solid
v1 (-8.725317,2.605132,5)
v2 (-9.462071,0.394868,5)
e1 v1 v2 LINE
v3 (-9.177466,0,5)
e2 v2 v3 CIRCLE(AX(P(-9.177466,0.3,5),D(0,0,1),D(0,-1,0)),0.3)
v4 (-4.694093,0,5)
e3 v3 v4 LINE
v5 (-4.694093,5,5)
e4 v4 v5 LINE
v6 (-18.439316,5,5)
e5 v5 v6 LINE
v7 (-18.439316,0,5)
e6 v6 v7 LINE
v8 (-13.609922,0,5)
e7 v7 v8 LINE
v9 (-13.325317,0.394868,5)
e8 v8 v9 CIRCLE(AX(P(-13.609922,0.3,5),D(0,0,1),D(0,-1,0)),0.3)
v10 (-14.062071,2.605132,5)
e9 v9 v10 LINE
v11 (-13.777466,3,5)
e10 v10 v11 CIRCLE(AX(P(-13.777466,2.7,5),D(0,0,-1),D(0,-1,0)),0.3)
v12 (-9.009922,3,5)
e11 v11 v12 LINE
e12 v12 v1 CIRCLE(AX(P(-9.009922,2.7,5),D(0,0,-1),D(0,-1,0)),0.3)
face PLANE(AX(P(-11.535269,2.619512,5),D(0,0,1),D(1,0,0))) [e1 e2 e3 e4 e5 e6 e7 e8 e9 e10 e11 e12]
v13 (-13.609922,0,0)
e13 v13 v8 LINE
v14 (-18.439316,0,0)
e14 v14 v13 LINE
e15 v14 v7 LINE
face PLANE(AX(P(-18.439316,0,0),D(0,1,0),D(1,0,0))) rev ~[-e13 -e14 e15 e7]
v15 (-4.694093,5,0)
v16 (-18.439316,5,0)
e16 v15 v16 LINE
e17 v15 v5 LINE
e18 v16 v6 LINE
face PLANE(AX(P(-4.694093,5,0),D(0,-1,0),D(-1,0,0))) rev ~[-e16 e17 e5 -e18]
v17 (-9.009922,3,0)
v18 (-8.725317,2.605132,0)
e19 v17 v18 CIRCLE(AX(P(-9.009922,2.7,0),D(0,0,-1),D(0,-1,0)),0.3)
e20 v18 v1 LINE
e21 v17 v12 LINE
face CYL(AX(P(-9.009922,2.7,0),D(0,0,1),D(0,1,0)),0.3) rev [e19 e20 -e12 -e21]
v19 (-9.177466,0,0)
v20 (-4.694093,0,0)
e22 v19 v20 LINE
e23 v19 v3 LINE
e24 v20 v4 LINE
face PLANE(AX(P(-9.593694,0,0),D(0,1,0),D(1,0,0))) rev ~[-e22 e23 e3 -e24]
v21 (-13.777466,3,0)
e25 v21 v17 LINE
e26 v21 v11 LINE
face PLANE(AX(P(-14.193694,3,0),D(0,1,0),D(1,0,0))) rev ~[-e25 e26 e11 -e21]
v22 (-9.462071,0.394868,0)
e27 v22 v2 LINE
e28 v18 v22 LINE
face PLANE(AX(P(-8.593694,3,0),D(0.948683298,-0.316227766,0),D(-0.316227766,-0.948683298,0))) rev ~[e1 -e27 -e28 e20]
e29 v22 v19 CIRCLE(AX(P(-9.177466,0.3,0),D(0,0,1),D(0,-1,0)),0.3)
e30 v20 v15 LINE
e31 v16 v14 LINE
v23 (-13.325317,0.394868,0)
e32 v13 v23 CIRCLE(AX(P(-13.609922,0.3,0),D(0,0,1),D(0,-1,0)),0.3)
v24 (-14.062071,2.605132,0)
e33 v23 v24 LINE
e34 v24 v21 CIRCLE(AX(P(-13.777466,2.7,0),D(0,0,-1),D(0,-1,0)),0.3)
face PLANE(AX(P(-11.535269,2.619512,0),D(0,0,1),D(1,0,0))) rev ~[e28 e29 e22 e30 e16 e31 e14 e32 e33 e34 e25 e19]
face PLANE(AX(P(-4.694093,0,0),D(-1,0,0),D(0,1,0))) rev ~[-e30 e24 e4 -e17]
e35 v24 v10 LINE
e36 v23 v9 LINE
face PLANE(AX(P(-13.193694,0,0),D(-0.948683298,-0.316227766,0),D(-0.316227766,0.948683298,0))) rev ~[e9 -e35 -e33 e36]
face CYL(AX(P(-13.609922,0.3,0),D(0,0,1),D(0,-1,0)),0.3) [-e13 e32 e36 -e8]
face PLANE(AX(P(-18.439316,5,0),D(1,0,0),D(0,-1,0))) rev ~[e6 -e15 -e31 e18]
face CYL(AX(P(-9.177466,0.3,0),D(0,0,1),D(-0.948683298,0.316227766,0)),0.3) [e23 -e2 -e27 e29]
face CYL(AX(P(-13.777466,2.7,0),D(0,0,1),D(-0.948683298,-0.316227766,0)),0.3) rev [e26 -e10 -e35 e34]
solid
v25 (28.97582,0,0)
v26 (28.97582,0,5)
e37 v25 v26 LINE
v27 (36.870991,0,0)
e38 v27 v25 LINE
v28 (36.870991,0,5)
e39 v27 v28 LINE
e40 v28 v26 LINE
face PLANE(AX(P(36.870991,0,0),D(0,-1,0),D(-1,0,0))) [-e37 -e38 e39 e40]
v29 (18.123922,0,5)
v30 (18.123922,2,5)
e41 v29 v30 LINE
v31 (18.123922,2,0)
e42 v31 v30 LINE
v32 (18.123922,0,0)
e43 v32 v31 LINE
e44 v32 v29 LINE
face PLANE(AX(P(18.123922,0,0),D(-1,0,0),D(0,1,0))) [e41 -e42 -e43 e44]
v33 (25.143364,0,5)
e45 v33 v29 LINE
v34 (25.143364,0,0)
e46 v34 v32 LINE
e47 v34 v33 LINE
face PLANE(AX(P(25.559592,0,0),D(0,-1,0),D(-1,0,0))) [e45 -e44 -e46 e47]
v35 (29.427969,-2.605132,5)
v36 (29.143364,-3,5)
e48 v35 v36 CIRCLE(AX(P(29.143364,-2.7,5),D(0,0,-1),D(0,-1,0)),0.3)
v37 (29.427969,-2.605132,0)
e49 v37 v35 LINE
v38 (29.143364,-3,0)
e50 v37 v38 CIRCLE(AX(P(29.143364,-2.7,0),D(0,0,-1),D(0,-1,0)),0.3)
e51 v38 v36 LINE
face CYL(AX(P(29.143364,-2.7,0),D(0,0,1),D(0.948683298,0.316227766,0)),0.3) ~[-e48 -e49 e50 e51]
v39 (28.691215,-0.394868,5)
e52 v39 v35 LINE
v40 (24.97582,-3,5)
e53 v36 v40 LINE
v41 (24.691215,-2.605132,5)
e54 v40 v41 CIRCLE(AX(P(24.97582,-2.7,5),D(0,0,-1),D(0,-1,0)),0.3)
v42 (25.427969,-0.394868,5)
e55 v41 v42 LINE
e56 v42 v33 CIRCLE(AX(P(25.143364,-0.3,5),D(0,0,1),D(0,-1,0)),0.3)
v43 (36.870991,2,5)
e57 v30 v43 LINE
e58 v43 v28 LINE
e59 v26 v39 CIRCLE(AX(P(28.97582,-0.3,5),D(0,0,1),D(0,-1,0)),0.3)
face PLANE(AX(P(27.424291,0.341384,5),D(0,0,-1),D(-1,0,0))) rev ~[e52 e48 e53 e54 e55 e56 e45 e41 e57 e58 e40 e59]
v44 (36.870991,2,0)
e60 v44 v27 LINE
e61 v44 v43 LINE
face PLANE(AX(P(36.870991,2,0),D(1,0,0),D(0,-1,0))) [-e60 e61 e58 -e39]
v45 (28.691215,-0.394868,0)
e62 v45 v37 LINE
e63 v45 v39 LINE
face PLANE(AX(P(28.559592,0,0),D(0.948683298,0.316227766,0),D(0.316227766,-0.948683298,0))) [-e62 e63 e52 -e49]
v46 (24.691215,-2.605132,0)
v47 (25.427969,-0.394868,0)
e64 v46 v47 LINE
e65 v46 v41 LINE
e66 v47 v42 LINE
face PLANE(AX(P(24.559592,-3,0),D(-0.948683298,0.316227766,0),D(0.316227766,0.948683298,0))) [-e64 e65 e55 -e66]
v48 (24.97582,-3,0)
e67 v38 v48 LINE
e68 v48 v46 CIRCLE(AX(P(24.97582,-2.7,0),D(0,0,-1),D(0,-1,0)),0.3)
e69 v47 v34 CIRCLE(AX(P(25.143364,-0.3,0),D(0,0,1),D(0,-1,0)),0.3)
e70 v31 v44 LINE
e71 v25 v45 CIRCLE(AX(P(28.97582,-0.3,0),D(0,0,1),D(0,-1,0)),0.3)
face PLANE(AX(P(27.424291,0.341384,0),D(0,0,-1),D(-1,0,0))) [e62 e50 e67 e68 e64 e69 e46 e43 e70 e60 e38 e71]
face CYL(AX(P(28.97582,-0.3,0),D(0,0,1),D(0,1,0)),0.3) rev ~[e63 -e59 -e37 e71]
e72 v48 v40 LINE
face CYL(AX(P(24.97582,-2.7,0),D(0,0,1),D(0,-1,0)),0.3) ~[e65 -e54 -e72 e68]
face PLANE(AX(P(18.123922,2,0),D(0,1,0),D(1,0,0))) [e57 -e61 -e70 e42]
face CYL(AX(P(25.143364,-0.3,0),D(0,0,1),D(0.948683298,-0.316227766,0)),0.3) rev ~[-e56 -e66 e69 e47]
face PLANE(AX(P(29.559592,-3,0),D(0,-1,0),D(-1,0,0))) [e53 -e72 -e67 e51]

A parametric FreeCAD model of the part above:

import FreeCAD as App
import Part
import Sketcher

V = App.Vector


def edges_at(feature, points):
    """Names of the edges that pass closest to the given points."""
    edges = feature.Shape.Edges
    near = lambda p: min(range(len(edges)), key=lambda i: edges[i].distToShape(Part.Vertex(*p))[0])
    return sorted({f"Edge{near(p) + 1}" for p in points})


def add_polygon(sketch, points):
    """Adds a closed chain of lines whose ends are joined by coincident constraints."""
    first, n = sketch.GeometryCount, len(points)
    for a, b in zip(points, points[1:] + points[:1]):
        sketch.addGeometry(Part.LineSegment(App.Vector(*a, 0), App.Vector(*b, 0)), False)
    for i in range(n):
        sketch.addConstraint(Sketcher.Constraint("Coincident", first + i, 2, first + (i + 1) % n, 1))

doc = App.newDocument("Part")
params = doc.addObject("Spreadsheet::Sheet", "Params")
for row, (alias, value) in enumerate([
    ("sketch1_width", "5 mm"),
    ("sketch1_height", "2 mm"),
    ("sketch1_width2", "5.6 mm"),
    ("pad1_length", "5 mm"),
    ("fillet_radius", "0.3 mm"),
], start=1):
    params.set(f"A{row}", alias)
    params.set(f"B{row}", "=" + value)
    params.setAlias(f"B{row}", alias)

body = doc.addObject("PartDesign::Body", "Body")
body.AllowCompound = True

# Sketch on XY plane
sketch1 = doc.addObject("Sketcher::SketchObject", "Sketch")
body.addObject(sketch1)
sketch1.AttachmentSupport = (doc.XY_Plane, [""])
sketch1.MapMode = "FlatFace"
add_polygon(sketch1, [(36.870991, 2), (18.123922, 2), (18.123922, 0), (25.559592, 0), (24.559592, -3), (29.559592, -3), (28.559592, 0), (36.870991, 0)])  # lines 0-7
add_polygon(sketch1, [(-18.439316, 0), (-13.193694, 0), (-14.193694, 3), (-8.593694, 3), (-9.593694, 0), (-4.694093, 0), (-4.694093, 5), (-18.439316, 5)])  # lines 8-15
sketch1.addConstraint(Sketcher.Constraint("Horizontal", 0))
sketch1.addConstraint(Sketcher.Constraint("Vertical", 1))
sketch1.addConstraint(Sketcher.Constraint("Horizontal", 2))
sketch1.addConstraint(Sketcher.Constraint("Horizontal", 4))
sketch1.addConstraint(Sketcher.Constraint("Horizontal", 6))
sketch1.addConstraint(Sketcher.Constraint("Vertical", 7))
sketch1.addConstraint(Sketcher.Constraint("Horizontal", 8))
sketch1.addConstraint(Sketcher.Constraint("Horizontal", 10))
sketch1.addConstraint(Sketcher.Constraint("Horizontal", 12))
sketch1.addConstraint(Sketcher.Constraint("Vertical", 13))
sketch1.addConstraint(Sketcher.Constraint("Horizontal", 14))
sketch1.addConstraint(Sketcher.Constraint("Vertical", 15))
sketch1.addConstraint(Sketcher.Constraint("PointOnObject", 1, 2, -1))
sketch1.addConstraint(Sketcher.Constraint("PointOnObject", 5, 2, -1))
sketch1.addConstraint(Sketcher.Constraint("PointOnObject", 8, 2, -1))
sketch1.addConstraint(Sketcher.Constraint("PointOnObject", 11, 2, -1))
sketch1.addConstraint(Sketcher.Constraint("Parallel", 5, 9))
sketch1.addConstraint(Sketcher.Constraint("Parallel", 3, 11))
sketch1.addConstraint(Sketcher.Constraint("Equal", 4, 13))
sketch1.addConstraint(Sketcher.Constraint("Equal", 3, 5))
sketch1.addConstraint(Sketcher.Constraint("Equal", 5, 9))
sketch1.addConstraint(Sketcher.Constraint("DistanceX", 4, 1, 4, 2, 5.0))
sketch1.addConstraint(Sketcher.Constraint("DistanceY", 1, 2, 1, 1, 2.0))
sketch1.addConstraint(Sketcher.Constraint("DistanceX", 10, 1, 10, 2, 5.6))
sketch1.addConstraint(Sketcher.Constraint("DistanceY", 3, 2, -1, 1, 3.0))
sketch1.addConstraint(Sketcher.Constraint("DistanceX", 3, 2, 2, 2, 1.0))
sketch1.addConstraint(Sketcher.Constraint("DistanceX", 6, 1, 6, 2, 8.311399))
sketch1.addConstraint(Sketcher.Constraint("DistanceX", 12, 1, 12, 2, 4.899601))
sketch1.addConstraint(Sketcher.Constraint("DistanceX", 0, 2, 0, 1, 18.747069))
sketch1.addConstraint(Sketcher.Constraint("DistanceX", 8, 1, 8, 2, 5.245622))
sketch1.addConstraint(Sketcher.Constraint("DistanceX", -1, 1, 2, 2, 25.559592))
sketch1.addConstraint(Sketcher.Constraint("DistanceX", 8, 2, -1, 1, 13.193694))
sketch1.setExpression("Constraints[37]", "Params.sketch1_width")
sketch1.setExpression("Constraints[38]", "Params.sketch1_height")
sketch1.setExpression("Constraints[39]", "Params.sketch1_width2")
pad1 = doc.addObject("PartDesign::Pad", "Pad")
body.addObject(pad1)
pad1.Profile = sketch1
pad1.setExpression("Length", "Params.pad1_length")
doc.recompute()

fillet = doc.addObject("PartDesign::Fillet", "Fillet")
body.addObject(fillet)
fillet.Base = (pad1, edges_at(pad1, [
    (-13.194, 0, 2.5),
    (29.56, -3, 2.5),
    (-14.194, 3, 2.5),
    (28.56, 0, 2.5),
    (-8.594, 3, 2.5),
    (-9.594, 0, 2.5),
    (25.56, 0, 2.5),
    (24.56, -3, 2.5),
]))
fillet.setExpression("Radius", "Params.fillet_radius")

doc.recompute()
